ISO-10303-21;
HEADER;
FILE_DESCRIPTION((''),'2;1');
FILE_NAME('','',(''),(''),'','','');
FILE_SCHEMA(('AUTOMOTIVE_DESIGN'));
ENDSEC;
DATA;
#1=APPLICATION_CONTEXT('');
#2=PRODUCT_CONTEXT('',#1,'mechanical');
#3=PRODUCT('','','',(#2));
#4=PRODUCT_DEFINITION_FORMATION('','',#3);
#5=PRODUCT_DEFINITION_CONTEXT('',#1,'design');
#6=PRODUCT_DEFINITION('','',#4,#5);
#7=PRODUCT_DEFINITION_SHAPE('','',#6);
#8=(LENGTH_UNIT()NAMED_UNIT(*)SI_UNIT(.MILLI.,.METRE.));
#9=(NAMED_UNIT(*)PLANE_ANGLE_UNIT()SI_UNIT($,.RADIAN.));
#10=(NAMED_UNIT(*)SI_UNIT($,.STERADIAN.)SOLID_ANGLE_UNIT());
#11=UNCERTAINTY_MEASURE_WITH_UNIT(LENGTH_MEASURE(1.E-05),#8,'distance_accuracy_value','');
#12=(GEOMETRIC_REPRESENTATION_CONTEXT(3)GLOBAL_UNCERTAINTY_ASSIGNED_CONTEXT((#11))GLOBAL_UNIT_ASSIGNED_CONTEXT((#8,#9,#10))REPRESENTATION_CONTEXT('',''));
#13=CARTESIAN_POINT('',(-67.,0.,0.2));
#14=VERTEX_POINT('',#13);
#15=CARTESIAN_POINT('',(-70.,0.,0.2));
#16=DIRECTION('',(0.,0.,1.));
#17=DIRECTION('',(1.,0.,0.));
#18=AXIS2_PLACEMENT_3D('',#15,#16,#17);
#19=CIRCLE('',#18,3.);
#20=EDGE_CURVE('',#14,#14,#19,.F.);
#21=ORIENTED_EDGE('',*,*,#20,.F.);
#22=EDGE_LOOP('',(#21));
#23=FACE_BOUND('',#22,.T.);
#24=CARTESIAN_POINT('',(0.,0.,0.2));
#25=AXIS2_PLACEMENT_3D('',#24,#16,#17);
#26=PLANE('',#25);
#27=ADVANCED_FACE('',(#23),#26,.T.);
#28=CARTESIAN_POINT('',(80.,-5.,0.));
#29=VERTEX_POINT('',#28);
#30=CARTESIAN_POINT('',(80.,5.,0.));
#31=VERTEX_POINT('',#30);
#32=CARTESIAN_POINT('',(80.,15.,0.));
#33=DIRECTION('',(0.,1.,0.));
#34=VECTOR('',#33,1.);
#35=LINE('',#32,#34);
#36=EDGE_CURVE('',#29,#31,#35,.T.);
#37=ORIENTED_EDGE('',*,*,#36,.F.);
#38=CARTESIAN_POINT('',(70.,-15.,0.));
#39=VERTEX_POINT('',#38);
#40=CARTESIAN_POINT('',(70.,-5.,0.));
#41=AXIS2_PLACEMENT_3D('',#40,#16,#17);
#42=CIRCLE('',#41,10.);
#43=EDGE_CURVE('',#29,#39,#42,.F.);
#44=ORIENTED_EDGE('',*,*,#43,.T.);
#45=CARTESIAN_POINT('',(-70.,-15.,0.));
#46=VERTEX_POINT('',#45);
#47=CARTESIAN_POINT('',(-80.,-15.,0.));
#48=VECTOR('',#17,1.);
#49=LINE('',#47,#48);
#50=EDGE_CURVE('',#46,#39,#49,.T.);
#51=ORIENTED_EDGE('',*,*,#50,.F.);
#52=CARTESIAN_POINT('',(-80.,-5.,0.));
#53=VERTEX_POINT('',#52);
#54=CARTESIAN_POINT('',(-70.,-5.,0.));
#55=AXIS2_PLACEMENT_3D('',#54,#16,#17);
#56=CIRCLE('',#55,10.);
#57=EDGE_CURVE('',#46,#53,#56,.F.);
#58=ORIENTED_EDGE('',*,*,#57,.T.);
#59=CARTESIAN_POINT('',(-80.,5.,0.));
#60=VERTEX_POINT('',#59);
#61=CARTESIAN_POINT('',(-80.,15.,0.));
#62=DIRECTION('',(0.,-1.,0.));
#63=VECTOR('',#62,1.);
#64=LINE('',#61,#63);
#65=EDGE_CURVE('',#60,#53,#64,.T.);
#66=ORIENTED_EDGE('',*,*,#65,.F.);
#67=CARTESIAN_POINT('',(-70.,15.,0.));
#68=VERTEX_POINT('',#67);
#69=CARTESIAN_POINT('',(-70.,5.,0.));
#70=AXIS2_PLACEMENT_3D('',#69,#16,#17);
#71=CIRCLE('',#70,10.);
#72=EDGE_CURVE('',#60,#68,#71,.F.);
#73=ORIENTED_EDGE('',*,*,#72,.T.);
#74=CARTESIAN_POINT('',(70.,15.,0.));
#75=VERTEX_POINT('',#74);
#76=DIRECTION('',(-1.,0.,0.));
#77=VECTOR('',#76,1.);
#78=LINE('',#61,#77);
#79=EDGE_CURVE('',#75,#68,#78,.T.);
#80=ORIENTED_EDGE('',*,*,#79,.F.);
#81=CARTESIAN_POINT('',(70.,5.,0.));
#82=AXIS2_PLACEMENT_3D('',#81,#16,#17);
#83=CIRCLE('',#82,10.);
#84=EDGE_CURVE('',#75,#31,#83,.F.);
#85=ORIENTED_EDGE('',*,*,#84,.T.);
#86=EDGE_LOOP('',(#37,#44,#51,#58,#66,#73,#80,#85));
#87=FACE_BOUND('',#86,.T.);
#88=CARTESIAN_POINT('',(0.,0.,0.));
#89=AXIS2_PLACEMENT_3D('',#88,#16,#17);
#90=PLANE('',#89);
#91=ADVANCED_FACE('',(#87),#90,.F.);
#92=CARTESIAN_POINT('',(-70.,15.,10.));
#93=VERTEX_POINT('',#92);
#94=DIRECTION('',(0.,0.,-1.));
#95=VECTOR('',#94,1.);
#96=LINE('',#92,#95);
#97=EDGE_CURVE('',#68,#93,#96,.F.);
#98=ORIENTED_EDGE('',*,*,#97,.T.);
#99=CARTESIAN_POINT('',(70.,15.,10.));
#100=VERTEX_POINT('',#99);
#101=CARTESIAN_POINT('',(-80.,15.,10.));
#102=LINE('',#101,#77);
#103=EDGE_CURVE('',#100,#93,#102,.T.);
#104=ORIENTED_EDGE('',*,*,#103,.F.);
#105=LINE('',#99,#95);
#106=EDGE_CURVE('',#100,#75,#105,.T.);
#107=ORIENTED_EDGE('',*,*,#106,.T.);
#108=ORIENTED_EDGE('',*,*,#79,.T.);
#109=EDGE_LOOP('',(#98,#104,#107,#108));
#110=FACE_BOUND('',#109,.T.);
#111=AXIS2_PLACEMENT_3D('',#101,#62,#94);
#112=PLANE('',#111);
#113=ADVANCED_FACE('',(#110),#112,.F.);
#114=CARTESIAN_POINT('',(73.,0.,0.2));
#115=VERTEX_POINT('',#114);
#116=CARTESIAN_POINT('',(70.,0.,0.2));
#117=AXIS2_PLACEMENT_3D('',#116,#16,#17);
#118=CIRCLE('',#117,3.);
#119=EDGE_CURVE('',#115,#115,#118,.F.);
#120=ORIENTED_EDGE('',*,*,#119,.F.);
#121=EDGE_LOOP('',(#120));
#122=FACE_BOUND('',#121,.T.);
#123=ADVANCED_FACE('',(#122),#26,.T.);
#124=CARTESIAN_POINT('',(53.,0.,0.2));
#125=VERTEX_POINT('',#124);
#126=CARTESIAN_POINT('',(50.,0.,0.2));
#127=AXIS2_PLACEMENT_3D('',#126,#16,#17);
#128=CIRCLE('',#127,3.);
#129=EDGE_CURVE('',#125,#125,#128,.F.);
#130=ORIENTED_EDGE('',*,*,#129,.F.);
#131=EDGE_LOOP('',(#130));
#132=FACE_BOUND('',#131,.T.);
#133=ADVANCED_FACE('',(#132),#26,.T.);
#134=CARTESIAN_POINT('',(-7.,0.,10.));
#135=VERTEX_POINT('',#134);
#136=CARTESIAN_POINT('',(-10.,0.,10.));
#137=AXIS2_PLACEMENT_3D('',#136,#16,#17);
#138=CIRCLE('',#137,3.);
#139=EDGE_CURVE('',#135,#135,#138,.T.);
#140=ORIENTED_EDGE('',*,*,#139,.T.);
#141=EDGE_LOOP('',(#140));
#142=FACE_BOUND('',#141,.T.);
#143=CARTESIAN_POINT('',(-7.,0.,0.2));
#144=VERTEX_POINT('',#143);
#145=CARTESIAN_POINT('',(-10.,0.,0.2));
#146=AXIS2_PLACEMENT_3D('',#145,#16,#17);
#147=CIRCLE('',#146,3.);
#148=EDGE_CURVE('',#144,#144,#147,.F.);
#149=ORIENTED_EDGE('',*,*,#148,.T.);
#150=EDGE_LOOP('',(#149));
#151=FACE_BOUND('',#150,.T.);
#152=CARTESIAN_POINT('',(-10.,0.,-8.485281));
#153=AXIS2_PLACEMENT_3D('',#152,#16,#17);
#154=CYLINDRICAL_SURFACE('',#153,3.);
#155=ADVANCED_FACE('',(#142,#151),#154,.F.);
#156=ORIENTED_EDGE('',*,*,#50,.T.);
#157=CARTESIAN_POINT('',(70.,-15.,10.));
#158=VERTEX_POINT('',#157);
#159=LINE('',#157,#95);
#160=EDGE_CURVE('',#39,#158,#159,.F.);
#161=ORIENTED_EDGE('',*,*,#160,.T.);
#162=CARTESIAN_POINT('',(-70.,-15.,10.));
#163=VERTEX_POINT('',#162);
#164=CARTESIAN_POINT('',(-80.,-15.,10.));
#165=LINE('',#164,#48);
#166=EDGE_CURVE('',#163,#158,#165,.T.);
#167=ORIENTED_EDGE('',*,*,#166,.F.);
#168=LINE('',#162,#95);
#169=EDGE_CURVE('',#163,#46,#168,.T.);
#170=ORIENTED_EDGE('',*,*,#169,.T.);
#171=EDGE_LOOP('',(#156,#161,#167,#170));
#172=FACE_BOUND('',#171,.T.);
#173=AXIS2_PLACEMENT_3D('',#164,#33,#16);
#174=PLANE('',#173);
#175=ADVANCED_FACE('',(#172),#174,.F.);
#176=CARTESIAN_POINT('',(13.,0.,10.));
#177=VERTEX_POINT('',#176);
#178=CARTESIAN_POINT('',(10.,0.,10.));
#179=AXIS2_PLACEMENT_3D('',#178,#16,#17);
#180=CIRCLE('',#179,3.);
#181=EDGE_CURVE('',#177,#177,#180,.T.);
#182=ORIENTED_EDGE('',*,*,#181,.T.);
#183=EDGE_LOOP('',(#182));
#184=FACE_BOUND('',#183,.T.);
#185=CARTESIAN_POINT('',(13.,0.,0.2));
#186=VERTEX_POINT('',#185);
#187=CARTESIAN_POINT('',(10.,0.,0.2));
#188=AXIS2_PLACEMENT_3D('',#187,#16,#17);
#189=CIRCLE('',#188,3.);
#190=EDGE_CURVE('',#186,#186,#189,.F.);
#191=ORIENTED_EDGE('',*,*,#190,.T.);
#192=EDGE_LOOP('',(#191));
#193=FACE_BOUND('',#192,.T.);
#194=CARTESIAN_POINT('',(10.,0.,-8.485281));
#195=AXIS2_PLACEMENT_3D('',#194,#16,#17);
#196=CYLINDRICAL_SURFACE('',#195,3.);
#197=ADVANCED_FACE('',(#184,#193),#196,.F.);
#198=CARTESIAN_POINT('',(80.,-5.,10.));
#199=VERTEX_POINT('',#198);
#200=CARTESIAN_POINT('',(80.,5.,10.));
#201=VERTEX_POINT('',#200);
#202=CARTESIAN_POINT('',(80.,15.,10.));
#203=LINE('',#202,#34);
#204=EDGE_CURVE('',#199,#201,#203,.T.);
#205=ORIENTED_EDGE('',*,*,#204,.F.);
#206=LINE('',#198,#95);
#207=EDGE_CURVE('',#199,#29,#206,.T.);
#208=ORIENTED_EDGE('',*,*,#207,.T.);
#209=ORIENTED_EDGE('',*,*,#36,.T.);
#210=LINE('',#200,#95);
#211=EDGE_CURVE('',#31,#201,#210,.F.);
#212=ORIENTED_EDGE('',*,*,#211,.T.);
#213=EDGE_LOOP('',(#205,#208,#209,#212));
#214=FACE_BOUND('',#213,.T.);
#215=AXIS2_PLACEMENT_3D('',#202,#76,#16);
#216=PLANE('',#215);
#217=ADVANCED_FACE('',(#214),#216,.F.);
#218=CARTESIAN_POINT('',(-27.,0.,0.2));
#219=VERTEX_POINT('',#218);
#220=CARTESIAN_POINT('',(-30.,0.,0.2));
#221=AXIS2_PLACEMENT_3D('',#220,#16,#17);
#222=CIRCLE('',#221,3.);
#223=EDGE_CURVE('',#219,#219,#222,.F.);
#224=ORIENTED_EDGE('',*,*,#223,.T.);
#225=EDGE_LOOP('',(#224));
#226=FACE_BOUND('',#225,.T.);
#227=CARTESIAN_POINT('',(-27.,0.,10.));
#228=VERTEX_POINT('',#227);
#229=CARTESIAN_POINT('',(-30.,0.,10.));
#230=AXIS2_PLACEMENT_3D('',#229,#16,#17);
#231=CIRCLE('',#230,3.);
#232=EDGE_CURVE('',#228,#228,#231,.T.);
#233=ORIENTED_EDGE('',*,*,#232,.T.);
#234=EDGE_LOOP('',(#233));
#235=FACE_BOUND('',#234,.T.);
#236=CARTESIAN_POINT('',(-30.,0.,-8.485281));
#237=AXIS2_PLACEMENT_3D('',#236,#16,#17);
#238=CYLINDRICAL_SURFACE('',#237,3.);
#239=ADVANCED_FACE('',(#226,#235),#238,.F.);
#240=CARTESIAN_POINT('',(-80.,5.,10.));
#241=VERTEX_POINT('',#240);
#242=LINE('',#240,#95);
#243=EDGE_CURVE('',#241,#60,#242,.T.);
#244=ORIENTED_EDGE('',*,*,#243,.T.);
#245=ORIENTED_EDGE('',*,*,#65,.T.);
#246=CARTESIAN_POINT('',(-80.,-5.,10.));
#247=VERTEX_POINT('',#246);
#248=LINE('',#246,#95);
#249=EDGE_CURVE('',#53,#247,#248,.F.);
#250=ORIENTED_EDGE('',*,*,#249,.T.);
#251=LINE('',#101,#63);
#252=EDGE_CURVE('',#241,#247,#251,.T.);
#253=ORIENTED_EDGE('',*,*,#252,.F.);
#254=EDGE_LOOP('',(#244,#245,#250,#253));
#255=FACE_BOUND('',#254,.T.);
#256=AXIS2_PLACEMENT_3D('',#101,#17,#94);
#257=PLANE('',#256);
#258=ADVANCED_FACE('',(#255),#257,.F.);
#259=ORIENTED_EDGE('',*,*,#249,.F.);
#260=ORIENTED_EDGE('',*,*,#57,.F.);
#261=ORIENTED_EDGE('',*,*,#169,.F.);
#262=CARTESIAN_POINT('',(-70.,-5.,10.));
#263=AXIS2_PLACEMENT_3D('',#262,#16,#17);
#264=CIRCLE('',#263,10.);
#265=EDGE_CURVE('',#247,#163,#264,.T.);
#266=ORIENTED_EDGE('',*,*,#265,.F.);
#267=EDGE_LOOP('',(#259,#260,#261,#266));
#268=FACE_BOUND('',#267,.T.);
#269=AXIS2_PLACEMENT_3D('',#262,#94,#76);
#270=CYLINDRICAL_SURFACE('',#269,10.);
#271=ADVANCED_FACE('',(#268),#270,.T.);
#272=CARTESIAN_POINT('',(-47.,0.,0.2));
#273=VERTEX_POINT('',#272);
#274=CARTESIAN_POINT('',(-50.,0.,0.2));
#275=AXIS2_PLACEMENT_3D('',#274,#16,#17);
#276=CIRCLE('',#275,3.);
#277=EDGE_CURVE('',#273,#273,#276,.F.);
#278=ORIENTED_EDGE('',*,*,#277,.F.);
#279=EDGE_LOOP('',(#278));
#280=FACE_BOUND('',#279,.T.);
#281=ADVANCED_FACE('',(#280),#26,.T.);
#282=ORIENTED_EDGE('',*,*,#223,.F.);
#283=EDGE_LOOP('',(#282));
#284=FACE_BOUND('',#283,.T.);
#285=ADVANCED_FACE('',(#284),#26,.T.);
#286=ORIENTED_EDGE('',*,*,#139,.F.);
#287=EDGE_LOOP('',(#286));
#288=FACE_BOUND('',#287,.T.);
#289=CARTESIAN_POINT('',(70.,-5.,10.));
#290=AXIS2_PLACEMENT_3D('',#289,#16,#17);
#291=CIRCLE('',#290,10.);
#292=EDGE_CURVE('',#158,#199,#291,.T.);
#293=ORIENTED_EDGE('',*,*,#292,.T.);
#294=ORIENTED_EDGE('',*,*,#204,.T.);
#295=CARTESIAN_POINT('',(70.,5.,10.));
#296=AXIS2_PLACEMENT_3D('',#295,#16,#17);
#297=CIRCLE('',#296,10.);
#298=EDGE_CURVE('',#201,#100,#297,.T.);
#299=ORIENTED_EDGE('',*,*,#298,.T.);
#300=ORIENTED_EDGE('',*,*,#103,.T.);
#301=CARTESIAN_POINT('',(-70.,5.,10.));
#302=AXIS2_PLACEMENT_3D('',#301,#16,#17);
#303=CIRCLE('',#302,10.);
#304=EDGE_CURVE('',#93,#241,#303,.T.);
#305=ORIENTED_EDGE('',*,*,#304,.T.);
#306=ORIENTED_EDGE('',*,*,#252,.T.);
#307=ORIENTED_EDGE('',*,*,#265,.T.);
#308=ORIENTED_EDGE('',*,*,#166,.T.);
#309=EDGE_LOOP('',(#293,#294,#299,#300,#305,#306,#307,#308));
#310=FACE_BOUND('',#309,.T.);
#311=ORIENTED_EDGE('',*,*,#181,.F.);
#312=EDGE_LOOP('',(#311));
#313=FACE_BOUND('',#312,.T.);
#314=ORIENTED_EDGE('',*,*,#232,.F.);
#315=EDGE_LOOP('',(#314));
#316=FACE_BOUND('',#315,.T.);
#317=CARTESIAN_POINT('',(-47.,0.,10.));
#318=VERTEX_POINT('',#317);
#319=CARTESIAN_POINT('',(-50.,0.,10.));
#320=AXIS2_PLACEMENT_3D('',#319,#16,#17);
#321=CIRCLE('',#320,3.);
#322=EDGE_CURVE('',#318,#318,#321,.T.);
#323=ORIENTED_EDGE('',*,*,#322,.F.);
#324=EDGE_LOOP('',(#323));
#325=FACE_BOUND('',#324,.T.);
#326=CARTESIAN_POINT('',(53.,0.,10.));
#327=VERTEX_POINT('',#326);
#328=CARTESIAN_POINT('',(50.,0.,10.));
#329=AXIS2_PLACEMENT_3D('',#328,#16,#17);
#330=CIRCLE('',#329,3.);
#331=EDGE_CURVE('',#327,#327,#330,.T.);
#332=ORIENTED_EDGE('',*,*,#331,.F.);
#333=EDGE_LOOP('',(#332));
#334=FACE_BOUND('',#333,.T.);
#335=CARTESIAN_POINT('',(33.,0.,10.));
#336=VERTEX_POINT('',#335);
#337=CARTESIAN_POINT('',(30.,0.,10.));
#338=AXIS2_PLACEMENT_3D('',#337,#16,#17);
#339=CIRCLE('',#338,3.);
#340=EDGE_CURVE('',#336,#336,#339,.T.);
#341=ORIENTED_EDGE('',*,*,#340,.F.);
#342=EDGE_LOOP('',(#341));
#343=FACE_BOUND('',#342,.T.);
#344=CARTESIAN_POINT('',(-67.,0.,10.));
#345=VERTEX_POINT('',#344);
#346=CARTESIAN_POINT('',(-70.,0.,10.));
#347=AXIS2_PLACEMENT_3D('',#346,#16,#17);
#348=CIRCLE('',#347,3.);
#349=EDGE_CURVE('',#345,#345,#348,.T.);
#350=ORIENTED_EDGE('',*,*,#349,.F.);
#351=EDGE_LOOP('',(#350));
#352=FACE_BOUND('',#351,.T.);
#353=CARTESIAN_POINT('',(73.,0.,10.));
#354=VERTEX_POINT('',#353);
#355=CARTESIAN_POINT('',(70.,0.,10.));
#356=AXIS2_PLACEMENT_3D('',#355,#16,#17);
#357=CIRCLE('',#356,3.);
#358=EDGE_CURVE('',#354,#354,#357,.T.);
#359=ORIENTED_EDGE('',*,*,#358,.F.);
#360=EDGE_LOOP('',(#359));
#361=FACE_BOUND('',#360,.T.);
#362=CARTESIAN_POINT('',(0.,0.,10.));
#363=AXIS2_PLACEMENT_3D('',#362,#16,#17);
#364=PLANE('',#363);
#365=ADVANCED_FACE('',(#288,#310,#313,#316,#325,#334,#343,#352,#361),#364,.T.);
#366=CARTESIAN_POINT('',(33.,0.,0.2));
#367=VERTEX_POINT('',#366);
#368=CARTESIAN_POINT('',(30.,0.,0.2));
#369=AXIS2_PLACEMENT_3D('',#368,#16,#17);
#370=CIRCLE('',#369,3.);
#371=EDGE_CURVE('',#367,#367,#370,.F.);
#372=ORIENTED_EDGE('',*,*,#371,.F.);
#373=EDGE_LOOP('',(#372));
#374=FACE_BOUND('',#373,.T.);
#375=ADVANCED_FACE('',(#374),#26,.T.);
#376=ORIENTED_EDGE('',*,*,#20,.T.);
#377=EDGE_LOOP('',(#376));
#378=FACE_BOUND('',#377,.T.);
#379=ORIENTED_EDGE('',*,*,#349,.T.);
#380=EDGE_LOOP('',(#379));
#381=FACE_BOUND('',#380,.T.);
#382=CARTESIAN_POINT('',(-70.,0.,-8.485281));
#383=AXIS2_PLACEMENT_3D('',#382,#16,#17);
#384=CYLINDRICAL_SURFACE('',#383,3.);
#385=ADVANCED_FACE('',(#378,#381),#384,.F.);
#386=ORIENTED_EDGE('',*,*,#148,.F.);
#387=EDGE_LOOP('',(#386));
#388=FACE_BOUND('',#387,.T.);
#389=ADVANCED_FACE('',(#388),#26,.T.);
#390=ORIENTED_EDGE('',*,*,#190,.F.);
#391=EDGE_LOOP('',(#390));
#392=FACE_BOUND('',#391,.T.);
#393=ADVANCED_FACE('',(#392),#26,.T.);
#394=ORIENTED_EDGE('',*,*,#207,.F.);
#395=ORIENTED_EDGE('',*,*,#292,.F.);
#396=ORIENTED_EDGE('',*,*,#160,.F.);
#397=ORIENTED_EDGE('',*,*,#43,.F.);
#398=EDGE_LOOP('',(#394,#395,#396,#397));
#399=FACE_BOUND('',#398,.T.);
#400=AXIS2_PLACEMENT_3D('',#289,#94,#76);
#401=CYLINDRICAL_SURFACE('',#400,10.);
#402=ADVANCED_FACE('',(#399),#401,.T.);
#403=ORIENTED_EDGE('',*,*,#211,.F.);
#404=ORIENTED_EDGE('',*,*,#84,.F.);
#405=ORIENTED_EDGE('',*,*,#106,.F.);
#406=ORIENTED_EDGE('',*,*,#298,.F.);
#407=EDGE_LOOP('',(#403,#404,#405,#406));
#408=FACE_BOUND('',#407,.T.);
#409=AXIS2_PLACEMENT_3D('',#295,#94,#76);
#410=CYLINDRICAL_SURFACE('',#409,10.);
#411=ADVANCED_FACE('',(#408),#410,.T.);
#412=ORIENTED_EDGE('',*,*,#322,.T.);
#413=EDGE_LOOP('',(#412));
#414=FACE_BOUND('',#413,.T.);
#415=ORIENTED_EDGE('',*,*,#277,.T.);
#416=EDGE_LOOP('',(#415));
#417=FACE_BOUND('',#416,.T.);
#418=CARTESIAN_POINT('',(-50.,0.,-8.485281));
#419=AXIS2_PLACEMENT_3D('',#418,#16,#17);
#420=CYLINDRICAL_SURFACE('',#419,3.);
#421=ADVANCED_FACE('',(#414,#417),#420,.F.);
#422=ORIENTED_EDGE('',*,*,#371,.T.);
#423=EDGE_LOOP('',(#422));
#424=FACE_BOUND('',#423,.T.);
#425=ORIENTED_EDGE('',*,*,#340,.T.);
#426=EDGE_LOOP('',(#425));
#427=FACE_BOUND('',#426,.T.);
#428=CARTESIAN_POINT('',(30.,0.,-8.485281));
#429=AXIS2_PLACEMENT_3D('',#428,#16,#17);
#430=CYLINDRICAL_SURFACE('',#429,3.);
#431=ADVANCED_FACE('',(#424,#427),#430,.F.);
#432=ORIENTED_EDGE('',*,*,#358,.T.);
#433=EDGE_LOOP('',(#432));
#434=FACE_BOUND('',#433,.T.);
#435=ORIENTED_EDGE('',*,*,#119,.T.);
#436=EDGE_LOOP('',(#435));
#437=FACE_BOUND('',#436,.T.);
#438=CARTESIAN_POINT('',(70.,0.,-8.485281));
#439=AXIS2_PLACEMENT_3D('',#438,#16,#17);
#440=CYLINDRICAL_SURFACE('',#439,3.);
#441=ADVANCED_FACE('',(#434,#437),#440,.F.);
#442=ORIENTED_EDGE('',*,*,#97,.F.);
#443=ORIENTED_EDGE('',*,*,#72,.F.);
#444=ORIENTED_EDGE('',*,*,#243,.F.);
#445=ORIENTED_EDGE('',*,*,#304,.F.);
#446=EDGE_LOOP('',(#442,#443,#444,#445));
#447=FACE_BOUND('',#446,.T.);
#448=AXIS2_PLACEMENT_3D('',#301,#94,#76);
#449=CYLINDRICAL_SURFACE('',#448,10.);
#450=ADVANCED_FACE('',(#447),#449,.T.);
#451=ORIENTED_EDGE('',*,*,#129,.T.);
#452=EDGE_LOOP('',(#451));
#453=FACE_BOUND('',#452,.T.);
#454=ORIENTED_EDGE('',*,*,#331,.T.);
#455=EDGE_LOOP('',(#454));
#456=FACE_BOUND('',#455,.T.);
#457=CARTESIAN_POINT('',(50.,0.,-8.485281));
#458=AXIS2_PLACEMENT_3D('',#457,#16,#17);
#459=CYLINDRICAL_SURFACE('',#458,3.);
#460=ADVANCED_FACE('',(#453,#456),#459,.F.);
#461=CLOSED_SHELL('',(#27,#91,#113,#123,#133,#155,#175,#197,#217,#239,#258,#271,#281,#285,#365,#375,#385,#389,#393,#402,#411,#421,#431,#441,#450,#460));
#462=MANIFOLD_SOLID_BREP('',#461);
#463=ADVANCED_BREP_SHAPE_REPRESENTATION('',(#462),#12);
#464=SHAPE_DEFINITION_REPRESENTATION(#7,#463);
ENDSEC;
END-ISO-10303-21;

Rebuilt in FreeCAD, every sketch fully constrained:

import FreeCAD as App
import Part
import Sketcher
from FreeCAD import Vector


def edges_at(feature, points):
    """Names of the edges that pass closest to the given points."""
    edges = feature.Shape.Edges
    near = lambda p: min(range(len(edges)), key=lambda i: edges[i].distToShape(Part.Vertex(*p))[0])
    return sorted({f"Edge{near(p) + 1}" for p in points})


def add_polygon(sketch, points):
    """Adds a closed chain of lines whose ends are joined by coincident constraints."""
    first, n = sketch.GeometryCount, len(points)
    for a, b in zip(points, points[1:] + points[:1]):
        sketch.addGeometry(Part.LineSegment(App.Vector(*a, 0), App.Vector(*b, 0)), False)
    for i in range(n):
        sketch.addConstraint(Sketcher.Constraint("Coincident", first + i, 2, first + (i + 1) % n, 1))

doc = App.newDocument("Part")
body = doc.addObject("PartDesign::Body", "Body")

sketch1 = body.newObject("Sketcher::SketchObject", "Sketch")
sketch1.AttachmentSupport = (doc.getObject("XY_Plane"), [""])
sketch1.MapMode = "FlatFace"
add_polygon(sketch1, [(-80, 15), (-80, -15), (80, -15), (80, 15)])
sketch1.addConstraint(Sketcher.Constraint("Vertical", 0))
sketch1.addConstraint(Sketcher.Constraint("Horizontal", 1))
sketch1.addConstraint(Sketcher.Constraint("Vertical", 2))
sketch1.addConstraint(Sketcher.Constraint("Horizontal", 3))
sketch1.addConstraint(Sketcher.Constraint("Symmetric", 0, 2, 2, 2, -1, 1))
sketch1.addConstraint(Sketcher.Constraint("DistanceX", 1, 1, 1, 2, 160.0))
sketch1.addConstraint(Sketcher.Constraint("DistanceY", 0, 2, 0, 1, 30.0))
pad1 = body.newObject("PartDesign::Pad", "Pad")
pad1.Profile = sketch1
pad1.Length = 10

sketch2 = body.newObject("Sketcher::SketchObject", "Sketch001")
sketch2.AttachmentSupport = (doc.getObject("XY_Plane"), [""])
sketch2.MapMode = "FlatFace"
sketch2.AttachmentOffset = App.Placement(Vector(0, 0, 10), App.Rotation())
sketch2.addGeometry(Part.Circle(Vector(30, 0, 0), Vector(0, 0, 1), 3), False)
sketch2.addGeometry(Part.Circle(Vector(-30, 0, 0), Vector(0, 0, 1), 3), False)
sketch2.addGeometry(Part.Circle(Vector(-70, 0, 0), Vector(0, 0, 1), 3), False)
sketch2.addGeometry(Part.Circle(Vector(-50, 0, 0), Vector(0, 0, 1), 3), False)
sketch2.addGeometry(Part.Circle(Vector(50, 0, 0), Vector(0, 0, 1), 3), False)
sketch2.addGeometry(Part.Circle(Vector(70, 0, 0), Vector(0, 0, 1), 3), False)
sketch2.addGeometry(Part.Circle(Vector(-10, 0, 0), Vector(0, 0, 1), 3), False)
sketch2.addGeometry(Part.Circle(Vector(10, 0, 0), Vector(0, 0, 1), 3), False)
sketch2.addConstraint(Sketcher.Constraint("Equal", 0, 1))
sketch2.addConstraint(Sketcher.Constraint("Equal", 1, 2))
sketch2.addConstraint(Sketcher.Constraint("Equal", 2, 3))
sketch2.addConstraint(Sketcher.Constraint("Equal", 3, 4))
sketch2.addConstraint(Sketcher.Constraint("Equal", 4, 5))
sketch2.addConstraint(Sketcher.Constraint("Equal", 5, 6))
sketch2.addConstraint(Sketcher.Constraint("Equal", 6, 7))
sketch2.addConstraint(Sketcher.Constraint("Symmetric", 0, 3, 1, 3, -1, 1))
sketch2.addConstraint(Sketcher.Constraint("Symmetric", 3, 3, 4, 3, -1, 1))
sketch2.addConstraint(Sketcher.Constraint("Symmetric", 2, 3, 5, 3, -1, 1))
sketch2.addConstraint(Sketcher.Constraint("Symmetric", 6, 3, 7, 3, -1, 1))
sketch2.addConstraint(Sketcher.Constraint("PointOnObject", 0, 3, -1))
sketch2.addConstraint(Sketcher.Constraint("PointOnObject", 2, 3, -1))
sketch2.addConstraint(Sketcher.Constraint("PointOnObject", 3, 3, -1))
sketch2.addConstraint(Sketcher.Constraint("PointOnObject", 6, 3, -1))
sketch2.addConstraint(Sketcher.Constraint("Diameter", 0, 6.0))
sketch2.addConstraint(Sketcher.Constraint("DistanceX", -1, 1, 0, 3, 30.0))
sketch2.addConstraint(Sketcher.Constraint("DistanceX", 2, 3, -1, 1, 70.0))
sketch2.addConstraint(Sketcher.Constraint("DistanceX", 3, 3, -1, 1, 50.0))
sketch2.addConstraint(Sketcher.Constraint("DistanceX", 6, 3, -1, 1, 10.0))
pocket1 = body.newObject("PartDesign::Pocket", "Pocket")
pocket1.Profile = sketch2
pocket1.Length = 9.8
doc.recompute()

fillet = body.newObject("PartDesign::Fillet", "Fillet")
fillet.Base = (pocket1, edges_at(pocket1, [
    (80, -15, 5),
    (-80, -15, 5),
    (-80, 15, 5),
    (80, 15, 5),
]))
fillet.Radius = 10

doc.recompute()
